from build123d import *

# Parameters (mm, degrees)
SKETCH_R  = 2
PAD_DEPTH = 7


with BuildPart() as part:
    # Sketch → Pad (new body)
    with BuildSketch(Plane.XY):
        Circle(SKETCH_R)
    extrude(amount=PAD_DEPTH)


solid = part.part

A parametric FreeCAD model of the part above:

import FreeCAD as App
import Part
import Sketcher
from FreeCAD import Vector
Q = App.Units.Quantity

doc = App.newDocument("Part")
body = doc.addObject("PartDesign::Body", "Body")

sketch1 = body.newObject("Sketcher::SketchObject", "Sketch")
sketch1.AttachmentSupport = (doc.getObject("XY_Plane"), [""])
sketch1.MapMode = "FlatFace"
sketch1.addGeometry(Part.Circle(Vector(0, 0, 0), Vector(0, 0, 1), 2), False)
sketch1.addConstraint(Sketcher.Constraint("Coincident", 0, 3, -1, 1))
sketch1.addConstraint(Sketcher.Constraint("Diameter", 0, Q("4 mm")))
pad1 = body.newObject("PartDesign::Pad", "Pad")
pad1.Profile = sketch1
pad1.Length = 7

doc.recompute()
